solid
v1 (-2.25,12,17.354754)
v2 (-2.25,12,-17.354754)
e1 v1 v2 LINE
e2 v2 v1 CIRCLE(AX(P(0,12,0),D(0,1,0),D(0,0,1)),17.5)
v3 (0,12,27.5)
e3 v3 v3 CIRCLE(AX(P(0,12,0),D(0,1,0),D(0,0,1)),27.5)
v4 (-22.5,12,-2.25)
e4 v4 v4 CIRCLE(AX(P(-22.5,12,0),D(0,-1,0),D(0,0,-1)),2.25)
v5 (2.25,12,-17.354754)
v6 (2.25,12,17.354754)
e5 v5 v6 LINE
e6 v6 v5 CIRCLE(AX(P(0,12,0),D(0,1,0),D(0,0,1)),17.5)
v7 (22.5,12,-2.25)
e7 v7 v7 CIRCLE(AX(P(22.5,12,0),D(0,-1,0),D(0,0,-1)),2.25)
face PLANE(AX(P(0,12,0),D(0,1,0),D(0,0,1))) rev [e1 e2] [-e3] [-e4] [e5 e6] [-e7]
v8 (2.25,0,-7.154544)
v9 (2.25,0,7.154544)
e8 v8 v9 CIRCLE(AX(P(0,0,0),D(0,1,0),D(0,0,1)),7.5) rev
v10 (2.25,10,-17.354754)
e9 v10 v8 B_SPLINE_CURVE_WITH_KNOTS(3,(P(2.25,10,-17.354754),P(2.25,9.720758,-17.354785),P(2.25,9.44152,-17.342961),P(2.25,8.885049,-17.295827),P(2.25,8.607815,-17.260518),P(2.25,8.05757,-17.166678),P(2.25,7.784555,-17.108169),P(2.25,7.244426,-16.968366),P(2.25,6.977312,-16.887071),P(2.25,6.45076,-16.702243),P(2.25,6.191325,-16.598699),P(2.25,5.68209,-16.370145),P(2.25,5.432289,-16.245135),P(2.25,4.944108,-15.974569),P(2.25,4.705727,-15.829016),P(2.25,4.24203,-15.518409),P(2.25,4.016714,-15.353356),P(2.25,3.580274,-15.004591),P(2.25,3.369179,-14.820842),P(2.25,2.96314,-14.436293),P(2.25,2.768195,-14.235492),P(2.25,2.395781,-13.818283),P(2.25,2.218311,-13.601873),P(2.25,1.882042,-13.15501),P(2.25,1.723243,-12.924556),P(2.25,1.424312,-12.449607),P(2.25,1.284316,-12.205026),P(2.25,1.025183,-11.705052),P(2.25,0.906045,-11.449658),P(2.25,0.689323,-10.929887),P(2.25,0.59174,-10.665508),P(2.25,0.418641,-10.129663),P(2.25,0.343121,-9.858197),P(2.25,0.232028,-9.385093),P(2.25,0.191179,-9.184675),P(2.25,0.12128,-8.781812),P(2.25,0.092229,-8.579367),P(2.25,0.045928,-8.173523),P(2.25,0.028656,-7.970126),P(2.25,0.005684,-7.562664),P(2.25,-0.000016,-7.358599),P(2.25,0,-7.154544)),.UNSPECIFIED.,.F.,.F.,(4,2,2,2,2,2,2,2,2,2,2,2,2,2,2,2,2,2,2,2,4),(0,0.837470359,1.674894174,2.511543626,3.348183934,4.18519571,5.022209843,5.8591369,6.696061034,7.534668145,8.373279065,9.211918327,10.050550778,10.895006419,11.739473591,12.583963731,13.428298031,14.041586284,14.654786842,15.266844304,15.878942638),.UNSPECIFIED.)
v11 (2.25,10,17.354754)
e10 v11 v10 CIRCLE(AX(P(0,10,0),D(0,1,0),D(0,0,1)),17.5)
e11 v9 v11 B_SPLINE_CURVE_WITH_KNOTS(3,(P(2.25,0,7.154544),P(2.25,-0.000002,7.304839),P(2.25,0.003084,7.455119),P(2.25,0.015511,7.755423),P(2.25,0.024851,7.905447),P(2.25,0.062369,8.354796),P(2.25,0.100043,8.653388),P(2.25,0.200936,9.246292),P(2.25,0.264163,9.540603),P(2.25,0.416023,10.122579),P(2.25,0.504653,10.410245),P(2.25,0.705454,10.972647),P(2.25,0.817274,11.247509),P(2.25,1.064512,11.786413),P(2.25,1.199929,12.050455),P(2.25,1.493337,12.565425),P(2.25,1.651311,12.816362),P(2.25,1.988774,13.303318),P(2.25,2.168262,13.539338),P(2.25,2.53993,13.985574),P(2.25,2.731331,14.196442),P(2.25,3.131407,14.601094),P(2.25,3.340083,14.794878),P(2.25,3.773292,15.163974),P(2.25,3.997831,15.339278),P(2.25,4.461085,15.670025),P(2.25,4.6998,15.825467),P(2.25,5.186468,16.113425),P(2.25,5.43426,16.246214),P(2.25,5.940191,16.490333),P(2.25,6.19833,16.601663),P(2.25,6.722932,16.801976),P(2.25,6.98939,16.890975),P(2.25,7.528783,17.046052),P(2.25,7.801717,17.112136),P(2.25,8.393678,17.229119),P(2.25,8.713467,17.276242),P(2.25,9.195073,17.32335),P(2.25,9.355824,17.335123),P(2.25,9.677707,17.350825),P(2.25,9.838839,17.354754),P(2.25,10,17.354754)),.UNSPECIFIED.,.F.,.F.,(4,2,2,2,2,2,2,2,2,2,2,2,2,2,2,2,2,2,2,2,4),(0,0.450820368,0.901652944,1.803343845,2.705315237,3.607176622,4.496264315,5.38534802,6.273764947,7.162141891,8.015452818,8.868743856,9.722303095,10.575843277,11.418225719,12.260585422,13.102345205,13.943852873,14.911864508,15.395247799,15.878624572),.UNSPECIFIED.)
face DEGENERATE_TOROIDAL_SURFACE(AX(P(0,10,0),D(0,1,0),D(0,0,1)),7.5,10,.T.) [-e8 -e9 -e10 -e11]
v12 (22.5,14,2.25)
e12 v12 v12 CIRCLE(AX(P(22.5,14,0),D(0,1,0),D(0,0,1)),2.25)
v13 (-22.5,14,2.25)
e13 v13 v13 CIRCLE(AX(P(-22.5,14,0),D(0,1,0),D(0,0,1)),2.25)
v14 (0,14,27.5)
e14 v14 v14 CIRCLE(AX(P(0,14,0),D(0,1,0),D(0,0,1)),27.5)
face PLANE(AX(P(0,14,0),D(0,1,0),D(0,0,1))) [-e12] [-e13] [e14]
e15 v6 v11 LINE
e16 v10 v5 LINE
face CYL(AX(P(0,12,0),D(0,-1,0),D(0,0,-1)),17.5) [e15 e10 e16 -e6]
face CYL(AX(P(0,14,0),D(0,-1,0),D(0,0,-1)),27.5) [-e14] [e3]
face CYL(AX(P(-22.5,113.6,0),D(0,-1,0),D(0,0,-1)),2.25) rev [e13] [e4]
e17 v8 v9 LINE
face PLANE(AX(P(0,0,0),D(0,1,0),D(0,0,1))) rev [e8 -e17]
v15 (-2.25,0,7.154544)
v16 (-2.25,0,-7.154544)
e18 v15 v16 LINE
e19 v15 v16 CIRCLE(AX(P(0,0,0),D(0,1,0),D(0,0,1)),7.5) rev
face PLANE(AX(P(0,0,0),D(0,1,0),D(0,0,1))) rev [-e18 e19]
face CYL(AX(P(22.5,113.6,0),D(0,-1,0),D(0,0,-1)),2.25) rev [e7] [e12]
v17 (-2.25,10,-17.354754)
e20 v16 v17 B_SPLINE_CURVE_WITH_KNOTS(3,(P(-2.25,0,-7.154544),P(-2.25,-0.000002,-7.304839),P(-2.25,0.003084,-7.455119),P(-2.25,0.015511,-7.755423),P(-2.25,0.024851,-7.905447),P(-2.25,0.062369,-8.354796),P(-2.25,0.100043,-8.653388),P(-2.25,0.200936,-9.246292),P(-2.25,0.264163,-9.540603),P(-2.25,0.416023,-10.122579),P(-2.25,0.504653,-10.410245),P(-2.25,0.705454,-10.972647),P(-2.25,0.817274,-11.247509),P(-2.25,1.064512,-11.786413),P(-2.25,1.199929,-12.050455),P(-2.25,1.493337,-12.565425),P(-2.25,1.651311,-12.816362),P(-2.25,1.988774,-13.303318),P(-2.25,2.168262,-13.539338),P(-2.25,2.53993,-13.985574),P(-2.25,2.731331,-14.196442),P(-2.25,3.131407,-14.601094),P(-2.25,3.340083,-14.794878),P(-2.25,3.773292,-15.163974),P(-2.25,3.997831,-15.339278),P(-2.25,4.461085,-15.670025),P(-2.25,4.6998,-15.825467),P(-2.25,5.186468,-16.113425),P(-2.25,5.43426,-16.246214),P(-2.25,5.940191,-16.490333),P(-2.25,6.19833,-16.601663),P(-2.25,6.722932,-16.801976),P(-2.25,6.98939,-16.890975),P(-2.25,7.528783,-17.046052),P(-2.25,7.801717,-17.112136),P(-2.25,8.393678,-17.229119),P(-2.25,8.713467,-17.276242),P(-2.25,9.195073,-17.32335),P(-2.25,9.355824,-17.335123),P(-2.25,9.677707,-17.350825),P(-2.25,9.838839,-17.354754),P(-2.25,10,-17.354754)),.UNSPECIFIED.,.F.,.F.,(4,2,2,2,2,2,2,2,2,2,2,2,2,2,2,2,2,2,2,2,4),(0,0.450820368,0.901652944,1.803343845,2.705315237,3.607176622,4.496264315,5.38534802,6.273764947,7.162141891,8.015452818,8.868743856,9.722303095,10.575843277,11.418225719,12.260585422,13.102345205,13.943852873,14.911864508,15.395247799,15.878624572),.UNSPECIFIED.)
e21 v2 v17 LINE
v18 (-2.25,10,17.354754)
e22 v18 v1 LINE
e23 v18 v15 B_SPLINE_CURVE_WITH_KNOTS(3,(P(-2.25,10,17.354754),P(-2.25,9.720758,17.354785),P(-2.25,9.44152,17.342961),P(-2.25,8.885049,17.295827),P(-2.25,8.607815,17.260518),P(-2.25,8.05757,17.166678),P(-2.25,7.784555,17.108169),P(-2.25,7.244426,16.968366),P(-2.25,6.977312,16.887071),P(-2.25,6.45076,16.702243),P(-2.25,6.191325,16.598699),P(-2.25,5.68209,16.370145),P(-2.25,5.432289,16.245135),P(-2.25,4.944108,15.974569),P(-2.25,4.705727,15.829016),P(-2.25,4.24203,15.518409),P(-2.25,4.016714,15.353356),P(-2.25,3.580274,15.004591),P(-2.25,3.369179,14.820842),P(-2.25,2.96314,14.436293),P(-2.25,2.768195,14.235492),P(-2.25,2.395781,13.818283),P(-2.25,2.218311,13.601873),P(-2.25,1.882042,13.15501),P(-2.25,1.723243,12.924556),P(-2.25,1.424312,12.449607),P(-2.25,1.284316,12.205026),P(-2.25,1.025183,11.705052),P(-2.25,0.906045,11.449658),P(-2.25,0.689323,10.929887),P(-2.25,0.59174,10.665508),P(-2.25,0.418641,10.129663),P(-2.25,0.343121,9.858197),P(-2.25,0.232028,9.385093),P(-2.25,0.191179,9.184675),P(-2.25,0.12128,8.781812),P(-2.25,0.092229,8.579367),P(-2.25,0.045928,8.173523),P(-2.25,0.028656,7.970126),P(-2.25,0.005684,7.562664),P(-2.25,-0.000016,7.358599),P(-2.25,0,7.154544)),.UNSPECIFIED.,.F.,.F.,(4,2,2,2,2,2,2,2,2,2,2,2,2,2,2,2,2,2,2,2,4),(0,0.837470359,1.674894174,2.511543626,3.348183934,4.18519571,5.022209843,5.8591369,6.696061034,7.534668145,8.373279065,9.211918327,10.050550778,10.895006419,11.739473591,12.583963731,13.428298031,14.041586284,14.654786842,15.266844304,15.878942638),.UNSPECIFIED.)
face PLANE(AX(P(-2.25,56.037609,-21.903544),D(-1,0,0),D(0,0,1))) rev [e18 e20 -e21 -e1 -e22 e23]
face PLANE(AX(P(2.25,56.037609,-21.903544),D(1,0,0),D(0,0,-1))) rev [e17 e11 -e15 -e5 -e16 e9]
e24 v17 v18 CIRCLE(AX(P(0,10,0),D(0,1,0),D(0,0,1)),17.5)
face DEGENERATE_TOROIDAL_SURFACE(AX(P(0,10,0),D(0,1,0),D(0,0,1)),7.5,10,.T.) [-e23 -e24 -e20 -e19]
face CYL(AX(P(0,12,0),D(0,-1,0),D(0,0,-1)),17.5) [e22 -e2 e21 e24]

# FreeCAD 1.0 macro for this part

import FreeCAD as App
import Part
import Sketcher

V = App.Vector


def edges_at(feature, points):
    """Names of the edges that pass closest to the given points."""
    edges = feature.Shape.Edges
    near = lambda p: min(range(len(edges)), key=lambda i: edges[i].distToShape(Part.Vertex(*p))[0])
    return sorted({f"Edge{near(p) + 1}" for p in points})


def add_polygon(sketch, points):
    """Adds a closed chain of lines whose ends are joined by coincident constraints."""
    first, n = sketch.GeometryCount, len(points)
    for a, b in zip(points, points[1:] + points[:1]):
        sketch.addGeometry(Part.LineSegment(App.Vector(*a, 0), App.Vector(*b, 0)), False)
    for i in range(n):
        sketch.addConstraint(Sketcher.Constraint("Coincident", first + i, 2, first + (i + 1) % n, 1))

doc = App.newDocument("Part")
body = doc.addObject("PartDesign::Body", "Body")

# Sketch on XZ plane
sketch1 = body.newObject("Sketcher::SketchObject", "Sketch")
sketch1.AttachmentSupport = (doc.getObject("XZ_Plane"), [""])
sketch1.MapMode = "FlatFace"
sketch1.addGeometry(Part.Circle(V(0, 0, 0), V(0, 0, 1), 17.5), False)
sketch1.addConstraint([
    Sketcher.Constraint("Coincident", 0, 3, -1, 1),
    Sketcher.Constraint("Diameter", 0, 35.0),
])
pad1 = body.newObject("PartDesign::Pad", "Pad")
pad1.Profile = sketch1
pad1.Length = 12
pad1.Reversed = True

# Sketch on XZ plane
sketch2 = body.newObject("Sketcher::SketchObject", "Sketch001")
sketch2.AttachmentSupport = (doc.getObject("XZ_Plane"), [""])
sketch2.MapMode = "FlatFace"
sketch2.AttachmentOffset = App.Placement(V(0, 0, -12), App.Rotation())
sketch2.addGeometry(Part.Circle(V(0, 0, 0), V(0, 0, 1), 27.5), False)
sketch2.addConstraint([
    Sketcher.Constraint("Coincident", 0, 3, -1, 1),
    Sketcher.Constraint("Diameter", 0, 55.0),
])
pad2 = body.newObject("PartDesign::Pad", "Pad001")
pad2.Profile = sketch2
pad2.Length = 2
pad2.Reversed = True

# Sketch on XZ plane
sketch3 = body.newObject("Sketcher::SketchObject", "Sketch002")
sketch3.AttachmentSupport = (doc.getObject("XZ_Plane"), [""])
sketch3.MapMode = "FlatFace"
add_polygon(sketch3, [(2.25, -21.903544), (2.25, 21.903544), (-2.25, 21.903544), (-2.25, -21.903544)])  # lines 0-3
sketch3.addConstraint([
    Sketcher.Constraint("Vertical", 0),
    Sketcher.Constraint("Horizontal", 1),
    Sketcher.Constraint("Vertical", 2),
    Sketcher.Constraint("Horizontal", 3),
    Sketcher.Constraint("Symmetric", 0, 2, 2, 2, -1, 1),
    Sketcher.Constraint("DistanceX", 1, 2, 1, 1, 4.5),
    Sketcher.Constraint("DistanceY", 0, 1, 0, 2, 43.807089),
])
pocket1 = body.newObject("PartDesign::Pocket", "Pocket")
pocket1.Profile = sketch3
pocket1.Length = 12
doc.recompute()

fillet = body.newObject("PartDesign::Fillet", "Fillet")
fillet.Base = (pocket1, edges_at(pocket1, [(-17.5, 0, 0), (17.5, 0, 0)]))
fillet.Radius = 10

# Sketch on XZ plane
sketch4 = body.newObject("Sketcher::SketchObject", "Sketch003")
sketch4.AttachmentSupport = (doc.getObject("XZ_Plane"), [""])
sketch4.MapMode = "FlatFace"
sketch4.AttachmentOffset = App.Placement(V(0, 0, -12), App.Rotation())
sketch4.addGeometry([
    Part.Circle(V(22.5, 0, 0), V(0, 0, 1), 2.25),
    Part.Circle(V(-22.5, 0, 0), V(0, 0, 1), 2.25),
], False)
sketch4.addConstraint([
    Sketcher.Constraint("Equal", 0, 1),
    Sketcher.Constraint("Symmetric", 0, 3, 1, 3, -1, 1),
    Sketcher.Constraint("PointOnObject", 0, 3, -1),
    Sketcher.Constraint("Diameter", 0, 4.5),
    Sketcher.Constraint("DistanceX", 1, 3, 0, 3, 45.0),
])
pocket2 = body.newObject("PartDesign::Pocket", "Pocket001")
pocket2.Profile = sketch4
pocket2.Length = 101.6

doc.recompute()
